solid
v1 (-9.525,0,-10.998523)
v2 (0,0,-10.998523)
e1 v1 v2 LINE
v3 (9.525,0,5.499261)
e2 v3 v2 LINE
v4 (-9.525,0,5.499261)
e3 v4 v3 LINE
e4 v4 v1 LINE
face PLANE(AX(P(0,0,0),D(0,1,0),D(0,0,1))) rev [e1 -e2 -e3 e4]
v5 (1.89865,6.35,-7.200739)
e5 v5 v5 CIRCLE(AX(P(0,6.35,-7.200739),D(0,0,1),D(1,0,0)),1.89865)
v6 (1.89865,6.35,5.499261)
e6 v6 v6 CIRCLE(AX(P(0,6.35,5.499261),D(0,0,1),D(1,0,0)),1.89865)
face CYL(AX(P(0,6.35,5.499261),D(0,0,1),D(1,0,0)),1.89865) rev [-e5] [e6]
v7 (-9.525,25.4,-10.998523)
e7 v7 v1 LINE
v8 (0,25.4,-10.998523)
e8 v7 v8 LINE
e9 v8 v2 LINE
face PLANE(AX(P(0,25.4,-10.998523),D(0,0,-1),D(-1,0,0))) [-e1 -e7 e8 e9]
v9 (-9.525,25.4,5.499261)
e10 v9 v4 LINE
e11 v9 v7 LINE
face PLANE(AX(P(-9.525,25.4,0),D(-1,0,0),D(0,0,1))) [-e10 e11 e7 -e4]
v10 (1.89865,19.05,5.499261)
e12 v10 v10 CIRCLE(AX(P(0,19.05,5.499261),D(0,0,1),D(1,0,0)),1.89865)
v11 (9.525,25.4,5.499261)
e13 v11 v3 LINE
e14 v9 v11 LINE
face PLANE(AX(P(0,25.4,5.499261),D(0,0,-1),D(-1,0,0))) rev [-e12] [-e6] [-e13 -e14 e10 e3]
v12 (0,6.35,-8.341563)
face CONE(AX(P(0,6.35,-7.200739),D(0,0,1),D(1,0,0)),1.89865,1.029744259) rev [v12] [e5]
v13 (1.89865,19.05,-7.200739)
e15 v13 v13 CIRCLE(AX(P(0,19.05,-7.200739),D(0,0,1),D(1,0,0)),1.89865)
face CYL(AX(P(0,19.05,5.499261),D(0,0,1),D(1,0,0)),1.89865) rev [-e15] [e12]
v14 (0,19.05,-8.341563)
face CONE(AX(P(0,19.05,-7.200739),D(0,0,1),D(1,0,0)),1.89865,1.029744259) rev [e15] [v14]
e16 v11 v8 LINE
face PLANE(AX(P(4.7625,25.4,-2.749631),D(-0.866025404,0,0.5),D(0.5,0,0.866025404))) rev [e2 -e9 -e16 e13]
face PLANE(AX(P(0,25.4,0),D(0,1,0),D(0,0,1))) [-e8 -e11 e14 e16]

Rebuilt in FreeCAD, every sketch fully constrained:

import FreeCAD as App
import Part
import Sketcher
from FreeCAD import Vector
Q = App.Units.Quantity

doc = App.newDocument("Part")
body = doc.addObject("PartDesign::Body", "Body")

sketch1 = body.newObject("Sketcher::SketchObject", "Sketch")
sketch1.AttachmentSupport = (doc.getObject("XZ_Plane"), [""])
sketch1.MapMode = "FlatFace"
sketch1.addGeometry(Part.LineSegment(Vector(0, -10.998523, 0), Vector(-9.525, -10.998523, 0)), False)
sketch1.addGeometry(Part.LineSegment(Vector(-9.525, -10.998523, 0), Vector(-9.525, 5.499261, 0)), False)
sketch1.addGeometry(Part.LineSegment(Vector(-9.525, 5.499261, 0), Vector(9.525, 5.499261, 0)), False)
sketch1.addGeometry(Part.LineSegment(Vector(9.525, 5.499261, 0), Vector(0, -10.998523, 0)), False)
sketch1.addConstraint(Sketcher.Constraint("Coincident", 0, 2, 1, 1))
sketch1.addConstraint(Sketcher.Constraint("Coincident", 1, 2, 2, 1))
sketch1.addConstraint(Sketcher.Constraint("Coincident", 2, 2, 3, 1))
sketch1.addConstraint(Sketcher.Constraint("Coincident", 3, 2, 0, 1))
sketch1.addConstraint(Sketcher.Constraint("Horizontal", 0))
sketch1.addConstraint(Sketcher.Constraint("Vertical", 1))
sketch1.addConstraint(Sketcher.Constraint("Horizontal", 2))
sketch1.addConstraint(Sketcher.Constraint("PointOnObject", 3, 2, -2))
sketch1.addConstraint(Sketcher.Constraint("Angle", 3, Q("-120 deg")))
sketch1.addConstraint(Sketcher.Constraint("DistanceX", 2, 1, 2, 2, Q("0.75 in")))
sketch1.addConstraint(Sketcher.Constraint("Distance", 3, Q("0.75 in")))
sketch1.addConstraint(Sketcher.Constraint("DistanceY", -1, 1, 1, 2, Q("5.499261 mm")))
pad1 = body.newObject("PartDesign::Pad", "Pad")
pad1.Profile = sketch1
pad1.Length = Q("1 in")
pad1.Reversed = True

sketch2 = body.newObject("Sketcher::SketchObject", "Sketch001")
sketch2.AttachmentSupport = (doc.getObject("XY_Plane"), [""])
sketch2.MapMode = "FlatFace"
sketch2.AttachmentOffset = App.Placement(Vector(0, 0, 5.499261), App.Rotation())
sketch2.addGeometry(Part.Circle(Vector(0, 19.05, 0), Vector(0, 0, 1), 1.89865), False)
sketch2.addGeometry(Part.Circle(Vector(0, 6.35, 0), Vector(0, 0, 1), 1.89865), False)
sketch2.addConstraint(Sketcher.Constraint("Equal", 0, 1))
sketch2.addConstraint(Sketcher.Constraint("PointOnObject", 0, 3, -2))
sketch2.addConstraint(Sketcher.Constraint("PointOnObject", 1, 3, -2))
sketch2.addConstraint(Sketcher.Constraint("Diameter", 0, Q("0.1495 in")))
sketch2.addConstraint(Sketcher.Constraint("DistanceY", 1, 3, 0, 3, Q("0.5 in")))
sketch2.addConstraint(Sketcher.Constraint("DistanceY", -1, 1, 0, 3, Q("0.75 in")))
doc.recompute()
hole = body.newObject("PartDesign::Hole", "Hole")
hole.Profile = sketch2
hole.ThreadType = "None"
hole.Diameter = Q("0.1495 in")
hole.DepthType = "Dimension"
hole.Depth = Q("0.5 in")
hole.DrillPoint = "Angled"
hole.DrillPointAngle = 118

doc.recompute()
